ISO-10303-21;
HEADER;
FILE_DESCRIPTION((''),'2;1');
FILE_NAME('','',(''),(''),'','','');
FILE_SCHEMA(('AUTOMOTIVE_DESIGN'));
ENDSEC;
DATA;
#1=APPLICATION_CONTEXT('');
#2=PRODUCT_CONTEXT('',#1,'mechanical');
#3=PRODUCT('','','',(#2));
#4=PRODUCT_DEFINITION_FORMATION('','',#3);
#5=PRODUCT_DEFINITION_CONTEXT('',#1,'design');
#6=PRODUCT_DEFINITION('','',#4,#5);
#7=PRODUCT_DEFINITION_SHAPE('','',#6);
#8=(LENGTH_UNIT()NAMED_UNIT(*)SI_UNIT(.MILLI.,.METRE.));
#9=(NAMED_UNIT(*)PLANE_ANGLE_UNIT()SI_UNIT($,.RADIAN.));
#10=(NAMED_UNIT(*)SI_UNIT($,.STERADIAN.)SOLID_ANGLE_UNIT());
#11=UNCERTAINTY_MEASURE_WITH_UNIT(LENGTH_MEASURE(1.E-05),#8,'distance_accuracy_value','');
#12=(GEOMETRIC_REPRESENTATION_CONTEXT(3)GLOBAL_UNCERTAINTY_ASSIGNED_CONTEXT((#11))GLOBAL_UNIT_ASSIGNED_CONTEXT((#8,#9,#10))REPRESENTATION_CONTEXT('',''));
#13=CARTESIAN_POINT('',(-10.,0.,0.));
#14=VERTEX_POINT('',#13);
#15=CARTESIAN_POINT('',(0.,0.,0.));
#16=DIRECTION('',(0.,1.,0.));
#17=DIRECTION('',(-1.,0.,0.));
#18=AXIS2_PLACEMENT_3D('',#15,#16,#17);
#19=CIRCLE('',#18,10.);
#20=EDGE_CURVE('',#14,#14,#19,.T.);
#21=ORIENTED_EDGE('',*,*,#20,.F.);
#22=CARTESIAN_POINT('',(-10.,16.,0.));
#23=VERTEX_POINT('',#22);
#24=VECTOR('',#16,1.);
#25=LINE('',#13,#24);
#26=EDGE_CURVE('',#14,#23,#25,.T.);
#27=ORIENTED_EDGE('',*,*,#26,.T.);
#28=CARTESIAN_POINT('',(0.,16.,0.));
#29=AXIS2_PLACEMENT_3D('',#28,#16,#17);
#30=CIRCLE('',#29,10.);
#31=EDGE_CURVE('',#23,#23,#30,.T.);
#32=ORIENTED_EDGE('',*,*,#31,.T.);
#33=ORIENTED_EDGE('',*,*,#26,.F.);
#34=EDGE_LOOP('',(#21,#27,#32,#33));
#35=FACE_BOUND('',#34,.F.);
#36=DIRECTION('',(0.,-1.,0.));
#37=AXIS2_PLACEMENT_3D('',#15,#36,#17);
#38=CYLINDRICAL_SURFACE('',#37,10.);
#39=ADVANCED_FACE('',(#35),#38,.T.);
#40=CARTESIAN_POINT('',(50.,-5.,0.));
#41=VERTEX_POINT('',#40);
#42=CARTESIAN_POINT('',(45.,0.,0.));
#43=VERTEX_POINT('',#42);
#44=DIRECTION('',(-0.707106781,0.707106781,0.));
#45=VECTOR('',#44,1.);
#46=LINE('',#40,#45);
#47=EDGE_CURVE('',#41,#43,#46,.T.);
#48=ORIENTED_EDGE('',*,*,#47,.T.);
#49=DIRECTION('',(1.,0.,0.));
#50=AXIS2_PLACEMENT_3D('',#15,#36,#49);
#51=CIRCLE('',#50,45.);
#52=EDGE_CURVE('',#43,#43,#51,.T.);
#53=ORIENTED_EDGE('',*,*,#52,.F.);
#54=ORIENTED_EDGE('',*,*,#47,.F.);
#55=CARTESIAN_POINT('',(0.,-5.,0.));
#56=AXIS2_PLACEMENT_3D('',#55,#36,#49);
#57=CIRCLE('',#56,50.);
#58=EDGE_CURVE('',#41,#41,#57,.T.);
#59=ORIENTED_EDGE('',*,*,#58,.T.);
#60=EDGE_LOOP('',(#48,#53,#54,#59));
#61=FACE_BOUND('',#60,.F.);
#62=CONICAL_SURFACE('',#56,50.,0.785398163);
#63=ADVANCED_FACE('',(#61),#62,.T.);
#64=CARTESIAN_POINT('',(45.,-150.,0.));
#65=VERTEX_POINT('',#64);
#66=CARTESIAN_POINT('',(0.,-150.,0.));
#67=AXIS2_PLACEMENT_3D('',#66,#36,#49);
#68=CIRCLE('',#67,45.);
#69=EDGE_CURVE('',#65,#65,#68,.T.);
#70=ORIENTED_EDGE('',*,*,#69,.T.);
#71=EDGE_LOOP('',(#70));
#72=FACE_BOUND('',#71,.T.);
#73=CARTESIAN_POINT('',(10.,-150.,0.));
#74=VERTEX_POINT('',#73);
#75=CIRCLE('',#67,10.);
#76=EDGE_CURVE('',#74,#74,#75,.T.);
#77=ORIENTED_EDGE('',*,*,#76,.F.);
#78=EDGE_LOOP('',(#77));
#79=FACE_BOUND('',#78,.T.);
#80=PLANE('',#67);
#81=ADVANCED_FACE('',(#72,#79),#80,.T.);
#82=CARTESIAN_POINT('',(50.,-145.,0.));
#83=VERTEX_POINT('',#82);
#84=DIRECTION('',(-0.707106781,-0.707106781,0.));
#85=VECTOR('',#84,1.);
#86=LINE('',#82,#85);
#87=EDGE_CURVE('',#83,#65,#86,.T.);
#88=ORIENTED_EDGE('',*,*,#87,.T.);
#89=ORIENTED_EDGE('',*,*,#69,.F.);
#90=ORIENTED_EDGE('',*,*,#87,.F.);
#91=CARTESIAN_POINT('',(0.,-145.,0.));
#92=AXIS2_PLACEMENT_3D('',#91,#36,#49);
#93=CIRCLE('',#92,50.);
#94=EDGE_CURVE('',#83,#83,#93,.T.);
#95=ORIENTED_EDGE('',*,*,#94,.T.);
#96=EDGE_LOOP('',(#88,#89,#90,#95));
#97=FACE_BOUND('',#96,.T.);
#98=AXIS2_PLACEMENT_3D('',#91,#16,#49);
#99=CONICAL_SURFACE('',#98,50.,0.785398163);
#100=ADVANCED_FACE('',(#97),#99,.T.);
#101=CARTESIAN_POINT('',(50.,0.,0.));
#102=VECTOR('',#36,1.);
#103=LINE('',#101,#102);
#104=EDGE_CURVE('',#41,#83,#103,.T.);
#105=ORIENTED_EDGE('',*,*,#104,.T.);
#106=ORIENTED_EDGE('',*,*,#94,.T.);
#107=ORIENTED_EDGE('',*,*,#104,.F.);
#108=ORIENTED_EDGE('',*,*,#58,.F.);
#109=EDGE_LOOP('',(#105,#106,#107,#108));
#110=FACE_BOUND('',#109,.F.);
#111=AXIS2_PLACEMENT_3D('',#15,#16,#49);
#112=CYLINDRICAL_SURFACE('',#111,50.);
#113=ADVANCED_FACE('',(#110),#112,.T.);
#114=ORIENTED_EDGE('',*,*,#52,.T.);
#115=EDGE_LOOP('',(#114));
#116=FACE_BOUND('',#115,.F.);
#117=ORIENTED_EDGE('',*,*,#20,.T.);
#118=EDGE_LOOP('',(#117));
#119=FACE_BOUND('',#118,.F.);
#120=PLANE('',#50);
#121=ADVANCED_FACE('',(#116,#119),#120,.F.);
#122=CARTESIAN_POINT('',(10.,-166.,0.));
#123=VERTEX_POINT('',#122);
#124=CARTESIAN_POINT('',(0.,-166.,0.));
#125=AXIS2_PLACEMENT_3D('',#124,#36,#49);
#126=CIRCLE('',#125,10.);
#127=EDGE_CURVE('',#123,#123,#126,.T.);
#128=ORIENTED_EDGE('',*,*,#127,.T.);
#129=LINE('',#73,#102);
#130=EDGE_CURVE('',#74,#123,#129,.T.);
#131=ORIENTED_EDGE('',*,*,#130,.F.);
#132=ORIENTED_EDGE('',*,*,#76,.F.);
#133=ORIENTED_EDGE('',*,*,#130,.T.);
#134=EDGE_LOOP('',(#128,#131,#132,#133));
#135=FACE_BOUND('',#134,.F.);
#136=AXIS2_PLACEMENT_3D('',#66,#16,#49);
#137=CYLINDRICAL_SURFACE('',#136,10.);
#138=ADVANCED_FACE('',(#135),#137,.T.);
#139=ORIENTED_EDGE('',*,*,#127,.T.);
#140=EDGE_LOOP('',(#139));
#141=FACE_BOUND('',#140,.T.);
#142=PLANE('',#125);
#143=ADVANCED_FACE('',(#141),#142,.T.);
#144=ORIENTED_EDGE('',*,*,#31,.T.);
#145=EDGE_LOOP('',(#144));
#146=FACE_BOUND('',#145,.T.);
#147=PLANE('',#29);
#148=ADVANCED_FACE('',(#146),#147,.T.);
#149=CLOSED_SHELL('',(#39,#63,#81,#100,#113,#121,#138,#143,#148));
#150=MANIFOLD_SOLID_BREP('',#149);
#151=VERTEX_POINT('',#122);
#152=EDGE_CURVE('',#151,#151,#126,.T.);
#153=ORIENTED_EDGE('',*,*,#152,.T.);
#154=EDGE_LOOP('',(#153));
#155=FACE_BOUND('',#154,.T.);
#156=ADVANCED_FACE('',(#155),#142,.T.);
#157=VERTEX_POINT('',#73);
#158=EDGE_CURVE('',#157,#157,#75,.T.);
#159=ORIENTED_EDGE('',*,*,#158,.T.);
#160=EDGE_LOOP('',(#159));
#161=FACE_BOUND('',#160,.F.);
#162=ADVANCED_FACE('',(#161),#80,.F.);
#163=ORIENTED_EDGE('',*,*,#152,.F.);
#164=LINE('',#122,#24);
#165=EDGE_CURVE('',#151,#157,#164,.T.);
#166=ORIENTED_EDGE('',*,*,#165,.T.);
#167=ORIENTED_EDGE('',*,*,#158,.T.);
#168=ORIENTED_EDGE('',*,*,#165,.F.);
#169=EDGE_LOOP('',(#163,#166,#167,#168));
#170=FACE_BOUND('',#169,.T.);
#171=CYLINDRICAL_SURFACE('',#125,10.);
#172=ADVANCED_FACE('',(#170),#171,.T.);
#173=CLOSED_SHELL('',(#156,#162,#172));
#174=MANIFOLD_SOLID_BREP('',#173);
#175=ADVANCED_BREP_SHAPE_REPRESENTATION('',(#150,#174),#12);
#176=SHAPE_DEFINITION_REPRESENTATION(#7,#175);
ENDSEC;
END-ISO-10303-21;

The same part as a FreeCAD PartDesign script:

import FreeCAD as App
import Part
import Sketcher
from FreeCAD import Vector

doc = App.newDocument("Part")
body = doc.addObject("PartDesign::Body", "Body")

# Sketch on XZ plane
sketch1 = doc.addObject("Sketcher::SketchObject", "Sketch")
body.addObject(sketch1)
sketch1.AttachmentSupport = (doc.XZ_Plane, [""])
sketch1.MapMode = "FlatFace"
sketch1.addGeometry(Part.Circle(Vector(0, 0, 0), Vector(0, 0, 1), 50), False)
sketch1.addConstraint(Sketcher.Constraint("Coincident", 0, 3, -1, 1))
sketch1.addConstraint(Sketcher.Constraint("Diameter", 0, 100.0))
pad1 = doc.addObject("PartDesign::Pad", "Pad")
body.addObject(pad1)
pad1.Profile = sketch1
pad1.Length = 150
doc.recompute()

chamfer = doc.addObject("PartDesign::Chamfer", "Chamfer")
body.addObject(chamfer)
chamfer.Base = (pad1, ["Edge1"])
chamfer.UseAllEdges = True
chamfer.ChamferType = "Two distances"
chamfer.Size = 5
chamfer.Size2 = 5

# Sketch on XZ plane
sketch2 = doc.addObject("Sketcher::SketchObject", "Sketch001")
body.addObject(sketch2)
sketch2.AttachmentSupport = (doc.XZ_Plane, [""])
sketch2.MapMode = "FlatFace"
sketch2.addGeometry(Part.Circle(Vector(0, 0, 0), Vector(0, 0, 1), 10), False)
sketch2.addConstraint(Sketcher.Constraint("Coincident", 0, 3, -1, 1))
sketch2.addConstraint(Sketcher.Constraint("Diameter", 0, 20.0))
pad2 = doc.addObject("PartDesign::Pad", "Pad001")
body.addObject(pad2)
pad2.Profile = sketch2
pad2.Length = 16
pad2.Reversed = True

# Sketch on XZ plane
sketch3 = doc.addObject("Sketcher::SketchObject", "Sketch002")
body.addObject(sketch3)
sketch3.AttachmentSupport = (doc.XZ_Plane, [""])
sketch3.MapMode = "FlatFace"
sketch3.AttachmentOffset = App.Placement(Vector(0, 0, 150), App.Rotation())
sketch3.addGeometry(Part.Circle(Vector(0, 0, 0), Vector(0, 0, 1), 10), False)
sketch3.addConstraint(Sketcher.Constraint("Coincident", 0, 3, -1, 1))
sketch3.addConstraint(Sketcher.Constraint("Diameter", 0, 20.0))
pad3 = doc.addObject("PartDesign::Pad", "Pad002")
body.addObject(pad3)
pad3.Profile = sketch3
pad3.Length = 16
body2 = doc.addObject("PartDesign::Body", "Body001")

# Sketch on XZ plane
sketch4 = doc.addObject("Sketcher::SketchObject", "Sketch003")
body2.addObject(sketch4)
sketch4.AttachmentSupport = (doc.getObject("XZ_Plane001"), [""])
sketch4.MapMode = "FlatFace"
sketch4.AttachmentOffset = App.Placement(Vector(0, 0, 166), App.Rotation())
sketch4.addGeometry(Part.Circle(Vector(0, 0, 0), Vector(0, 0, 1), 10), False)
sketch4.addConstraint(Sketcher.Constraint("Coincident", 0, 3, -1, 1))
sketch4.addConstraint(Sketcher.Constraint("Diameter", 0, 20.0))
pad4 = doc.addObject("PartDesign::Pad", "Pad003")
body2.addObject(pad4)
pad4.Profile = sketch4
pad4.Length = 16
pad4.Reversed = True

doc.recompute()
